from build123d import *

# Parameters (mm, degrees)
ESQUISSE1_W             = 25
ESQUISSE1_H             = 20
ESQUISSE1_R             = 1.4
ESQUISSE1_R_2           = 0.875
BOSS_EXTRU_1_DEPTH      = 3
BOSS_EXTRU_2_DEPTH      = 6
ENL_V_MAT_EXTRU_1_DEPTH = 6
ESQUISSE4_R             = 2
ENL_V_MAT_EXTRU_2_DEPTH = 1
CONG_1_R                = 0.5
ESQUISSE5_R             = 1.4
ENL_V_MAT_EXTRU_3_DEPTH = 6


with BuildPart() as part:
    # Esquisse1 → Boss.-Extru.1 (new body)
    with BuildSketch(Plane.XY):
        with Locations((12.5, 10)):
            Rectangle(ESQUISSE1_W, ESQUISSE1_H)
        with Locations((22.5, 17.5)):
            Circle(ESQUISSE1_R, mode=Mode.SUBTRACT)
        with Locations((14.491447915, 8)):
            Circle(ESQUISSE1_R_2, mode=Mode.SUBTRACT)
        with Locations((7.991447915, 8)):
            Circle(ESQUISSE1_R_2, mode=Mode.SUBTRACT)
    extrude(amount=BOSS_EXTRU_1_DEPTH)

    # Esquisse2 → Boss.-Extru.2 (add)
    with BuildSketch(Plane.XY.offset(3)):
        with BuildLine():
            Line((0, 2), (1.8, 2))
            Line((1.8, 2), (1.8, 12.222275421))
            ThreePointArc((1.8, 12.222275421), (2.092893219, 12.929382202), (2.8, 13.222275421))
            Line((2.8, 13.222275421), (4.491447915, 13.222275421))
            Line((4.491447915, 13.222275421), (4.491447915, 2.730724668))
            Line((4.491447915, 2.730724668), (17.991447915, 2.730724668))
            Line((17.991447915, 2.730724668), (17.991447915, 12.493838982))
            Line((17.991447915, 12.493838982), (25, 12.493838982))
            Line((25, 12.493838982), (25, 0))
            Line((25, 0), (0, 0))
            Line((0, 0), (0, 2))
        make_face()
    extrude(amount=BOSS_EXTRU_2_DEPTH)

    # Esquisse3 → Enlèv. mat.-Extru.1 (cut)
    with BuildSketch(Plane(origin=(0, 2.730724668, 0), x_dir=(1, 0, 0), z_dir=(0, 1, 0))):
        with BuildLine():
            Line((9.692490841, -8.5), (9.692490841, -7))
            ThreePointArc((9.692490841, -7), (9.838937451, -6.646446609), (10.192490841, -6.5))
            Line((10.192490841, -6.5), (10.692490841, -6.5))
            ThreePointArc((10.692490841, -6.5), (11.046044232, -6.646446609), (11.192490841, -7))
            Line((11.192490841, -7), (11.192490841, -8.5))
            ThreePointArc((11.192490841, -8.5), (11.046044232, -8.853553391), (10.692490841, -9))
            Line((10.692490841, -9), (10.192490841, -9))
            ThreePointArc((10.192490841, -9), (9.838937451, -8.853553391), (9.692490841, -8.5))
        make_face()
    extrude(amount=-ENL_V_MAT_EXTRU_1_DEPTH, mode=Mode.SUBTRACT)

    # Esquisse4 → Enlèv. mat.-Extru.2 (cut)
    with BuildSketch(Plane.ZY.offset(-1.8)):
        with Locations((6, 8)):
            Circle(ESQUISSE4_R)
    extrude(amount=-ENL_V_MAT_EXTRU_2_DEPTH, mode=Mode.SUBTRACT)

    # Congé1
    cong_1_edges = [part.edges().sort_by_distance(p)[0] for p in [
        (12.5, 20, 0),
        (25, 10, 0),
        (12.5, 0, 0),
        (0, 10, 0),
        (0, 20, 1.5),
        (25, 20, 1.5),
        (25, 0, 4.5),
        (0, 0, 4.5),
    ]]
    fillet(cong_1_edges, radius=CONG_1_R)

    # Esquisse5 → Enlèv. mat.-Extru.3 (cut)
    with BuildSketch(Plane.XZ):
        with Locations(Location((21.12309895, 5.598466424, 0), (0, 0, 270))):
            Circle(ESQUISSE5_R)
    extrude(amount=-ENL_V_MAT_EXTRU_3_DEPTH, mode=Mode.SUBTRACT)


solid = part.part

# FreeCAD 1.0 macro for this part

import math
import FreeCAD as App
import Part
import Sketcher
from FreeCAD import Vector
Q = App.Units.Quantity


def edges_at(feature, points):
    """Names of the edges that pass closest to the given points."""
    edges = feature.Shape.Edges
    near = lambda p: min(range(len(edges)), key=lambda i: edges[i].distToShape(Part.Vertex(*p))[0])
    return sorted({f"Edge{near(p) + 1}" for p in points})

doc = App.newDocument("Part")
body = doc.addObject("PartDesign::Body", "Body")

sketch1 = body.newObject("Sketcher::SketchObject", "Sketch")
sketch1.AttachmentSupport = (doc.getObject("XY_Plane"), [""])
sketch1.MapMode = "FlatFace"
sketch1.addGeometry([
    Part.LineSegment(Vector(0, 20, 0), Vector(0, 0, 0)),
    Part.LineSegment(Vector(0, 0, 0), Vector(25, 0, 0)),
    Part.LineSegment(Vector(25, 0, 0), Vector(25, 20, 0)),
    Part.LineSegment(Vector(25, 20, 0), Vector(0, 20, 0)),
    Part.Circle(Vector(8, 8, 0), Vector(0, 0, 1), 0.9),
    Part.Circle(Vector(14.5, 8, 0), Vector(0, 0, 1), 0.9),
    Part.Circle(Vector(22.5, 17.5, 0), Vector(0, 0, 1), 1.4),
], False)
sketch1.addConstraint([
    Sketcher.Constraint("Coincident", 0, 2, 1, 1),
    Sketcher.Constraint("Coincident", 1, 2, 2, 1),
    Sketcher.Constraint("Coincident", 2, 2, 3, 1),
    Sketcher.Constraint("Coincident", 3, 2, 0, 1),
    Sketcher.Constraint("Vertical", 0),
    Sketcher.Constraint("Horizontal", 1),
    Sketcher.Constraint("Vertical", 2),
    Sketcher.Constraint("Horizontal", 3),
    Sketcher.Constraint("Coincident", 0, 2, -1, 1),
    Sketcher.Constraint("Equal", 4, 5),
    Sketcher.Constraint("Horizontal", 4, 3, 5, 3),
    Sketcher.Constraint("Diameter", 6, Q("2.8 mm")),
    Sketcher.Constraint("Diameter", 4, Q("1.75 mm")),
    Sketcher.Constraint("DistanceX", 1, 1, 1, 2, Q("25 mm")),
    Sketcher.Constraint("DistanceY", 0, 2, 0, 1, Q("20 mm")),
    Sketcher.Constraint("DistanceY", -1, 1, 4, 3, Q("8 mm")),
    Sketcher.Constraint("DistanceX", -1, 1, 6, 3, Q("22.5 mm")),
    Sketcher.Constraint("DistanceY", -1, 1, 6, 3, Q("17.5 mm")),
    Sketcher.Constraint("DistanceX", 4, 3, 5, 3, Q("6.5 mm")),
    Sketcher.Constraint("DistanceX", -1, 1, 4, 3, Q("7.991448 mm")),
])
pad1 = body.newObject("PartDesign::Pad", "Pad")
pad1.Profile = sketch1
pad1.Length = 3

sketch2 = body.newObject("Sketcher::SketchObject", "Sketch001")
sketch2.AttachmentSupport = (doc.getObject("XY_Plane"), [""])
sketch2.MapMode = "FlatFace"
sketch2.AttachmentOffset = App.Placement(Vector(0, 0, 3), App.Rotation())
sketch2.addGeometry([
    Part.LineSegment(Vector(1.8, 2, 0), Vector(0, 2, 0)),
    Part.LineSegment(Vector(0, 2, 0), Vector(0, 0, 0)),
    Part.LineSegment(Vector(0, 0, 0), Vector(25, 0, 0)),
    Part.LineSegment(Vector(25, 0, 0), Vector(25, 12.5, 0)),
    Part.LineSegment(Vector(25, 12.5, 0), Vector(18, 12.5, 0)),
    Part.LineSegment(Vector(18, 12.5, 0), Vector(18, 2.7, 0)),
    Part.LineSegment(Vector(18, 2.7, 0), Vector(4.5, 2.7, 0)),
    Part.LineSegment(Vector(4.5, 2.7, 0), Vector(4.5, 13.2, 0)),
    Part.LineSegment(Vector(4.5, 13.2, 0), Vector(2.8, 13.2, 0)),
    Part.ArcOfCircle(Part.Circle(Vector(2.8, 12.2, 0), Vector(0, 0, 1), 1), math.radians(90), math.radians(180)),
    Part.LineSegment(Vector(1.8, 12.2, 0), Vector(1.8, 2, 0)),
], False)
sketch2.addConstraint([
    Sketcher.Constraint("Coincident", 0, 2, 1, 1),
    Sketcher.Constraint("Coincident", 1, 2, 2, 1),
    Sketcher.Constraint("Coincident", 2, 2, 3, 1),
    Sketcher.Constraint("Coincident", 3, 2, 4, 1),
    Sketcher.Constraint("Coincident", 4, 2, 5, 1),
    Sketcher.Constraint("Coincident", 5, 2, 6, 1),
    Sketcher.Constraint("Coincident", 6, 2, 7, 1),
    Sketcher.Constraint("Coincident", 7, 2, 8, 1),
    Sketcher.Constraint("Tangent", 8, 2, 9, 1),
    Sketcher.Constraint("Tangent", 9, 2, 10, 1),
    Sketcher.Constraint("Coincident", 10, 2, 0, 1),
    Sketcher.Constraint("Horizontal", 0),
    Sketcher.Constraint("Vertical", 1),
    Sketcher.Constraint("Horizontal", 2),
    Sketcher.Constraint("Vertical", 3),
    Sketcher.Constraint("Horizontal", 4),
    Sketcher.Constraint("Vertical", 5),
    Sketcher.Constraint("Horizontal", 6),
    Sketcher.Constraint("Vertical", 7),
    Sketcher.Constraint("Horizontal", 8),
    Sketcher.Constraint("Vertical", 10),
    Sketcher.Constraint("Coincident", 1, 2, -1, 1),
    Sketcher.Constraint("Radius", 9, Q("1 mm")),
    Sketcher.Constraint("DistanceX", 2, 1, 2, 2, Q("25 mm")),
    Sketcher.Constraint("DistanceY", 1, 2, 1, 1, Q("2 mm")),
    Sketcher.Constraint("DistanceX", 0, 2, 0, 1, Q("1.8 mm")),
    Sketcher.Constraint("DistanceX", 6, 2, 6, 1, Q("13.5 mm")),
    Sketcher.Constraint("DistanceY", 3, 1, 3, 2, Q("12.493839 mm")),
    Sketcher.Constraint("DistanceY", 7, 1, 7, 2, Q("10.491551 mm")),
    Sketcher.Constraint("DistanceX", 4, 2, 4, 1, Q("7.008552 mm")),
    Sketcher.Constraint("DistanceY", 5, 2, 5, 1, Q("9.763114 mm")),
])
pad2 = body.newObject("PartDesign::Pad", "Pad001")
pad2.Profile = sketch2
pad2.Length = 6

sketch3 = body.newObject("Sketcher::SketchObject", "Sketch002")
sketch3.AttachmentSupport = (doc.getObject("XZ_Plane"), [""])
sketch3.MapMode = "FlatFace"
sketch3.AttachmentOffset = App.Placement(Vector(0, 0, -2.730725), App.Rotation())
sketch3.addGeometry([
    Part.LineSegment(Vector(9.69, 7, 0), Vector(9.69, 8.5, 0)),
    Part.ArcOfCircle(Part.Circle(Vector(10.19, 8.5, 0), Vector(0, 0, 1), 0.5), math.radians(90), math.radians(180)),
    Part.LineSegment(Vector(10.19, 9, 0), Vector(10.69, 9, 0)),
    Part.ArcOfCircle(Part.Circle(Vector(10.69, 8.5, 0), Vector(0, 0, 1), 0.5), math.radians(0), math.radians(90)),
    Part.LineSegment(Vector(11.19, 8.5, 0), Vector(11.19, 7, 0)),
    Part.ArcOfCircle(Part.Circle(Vector(10.69, 7, 0), Vector(0, 0, 1), 0.5), math.radians(-90), math.radians(0)),
    Part.LineSegment(Vector(10.69, 6.5, 0), Vector(10.19, 6.5, 0)),
    Part.ArcOfCircle(Part.Circle(Vector(10.19, 7, 0), Vector(0, 0, 1), 0.5), math.radians(180), math.radians(270)),
], False)
sketch3.addConstraint([
    Sketcher.Constraint("Tangent", 0, 2, 1, 2),
    Sketcher.Constraint("Tangent", 1, 1, 2, 1),
    Sketcher.Constraint("Tangent", 2, 2, 3, 2),
    Sketcher.Constraint("Tangent", 3, 1, 4, 1),
    Sketcher.Constraint("Tangent", 4, 2, 5, 2),
    Sketcher.Constraint("Tangent", 5, 1, 6, 1),
    Sketcher.Constraint("Tangent", 6, 2, 7, 2),
    Sketcher.Constraint("Tangent", 7, 1, 0, 1),
    Sketcher.Constraint("Vertical", 0),
    Sketcher.Constraint("Horizontal", 2),
    Sketcher.Constraint("Vertical", 4),
    Sketcher.Constraint("Horizontal", 6),
    Sketcher.Constraint("Equal", 1, 3),
    Sketcher.Constraint("Equal", 3, 5),
    Sketcher.Constraint("Equal", 5, 7),
    Sketcher.Constraint("Radius", 1, Q("0.5 mm")),
    Sketcher.Constraint("DistanceX", 2, 1, 2, 2, Q("0.5 mm")),
    Sketcher.Constraint("DistanceY", 0, 1, 0, 2, Q("1.5 mm")),
    Sketcher.Constraint("DistanceY", -1, 1, 5, 3, Q("7 mm")),
    Sketcher.Constraint("DistanceX", -1, 1, 1, 3, Q("10.192491 mm")),
])
pocket1 = body.newObject("PartDesign::Pocket", "Pocket")
pocket1.Profile = sketch3
pocket1.Length = 6
pocket1.Reversed = True

sketch4 = body.newObject("Sketcher::SketchObject", "Sketch003")
sketch4.AttachmentSupport = (doc.getObject("YZ_Plane"), [""])
sketch4.MapMode = "FlatFace"
sketch4.AttachmentOffset = App.Placement(Vector(0, 0, 1.8), App.Rotation())
sketch4.addGeometry(Part.Circle(Vector(8, 6, 0), Vector(0, 0, 1), 2), False)
sketch4.addConstraint([
    Sketcher.Constraint("Diameter", 0, Q("4 mm")),
    Sketcher.Constraint("DistanceX", -1, 1, 0, 3, Q("8 mm")),
    Sketcher.Constraint("DistanceY", -1, 1, 0, 3, Q("6 mm")),
])
pocket2 = body.newObject("PartDesign::Pocket", "Pocket001")
pocket2.Profile = sketch4
pocket2.Length = 1
pocket2.Reversed = True
doc.recompute()

fillet = body.newObject("PartDesign::Fillet", "Fillet")
fillet.Base = (pocket2, edges_at(pocket2, [
    (12.5, 20, 0),
    (25, 10, 0),
    (12.5, 0, 0),
    (0, 10, 0),
    (0, 20, 1.5),
    (25, 20, 1.5),
    (25, 0, 4.5),
    (0, 0, 4.5),
]))
fillet.Radius = 0.5

sketch5 = body.newObject("Sketcher::SketchObject", "Sketch004")
sketch5.AttachmentSupport = (doc.getObject("XZ_Plane"), [""])
sketch5.MapMode = "FlatFace"
sketch5.addGeometry(Part.Circle(Vector(21.1, 5.6, 0), Vector(0, 0, 1), 1.4), False)
sketch5.addConstraint([
    Sketcher.Constraint("Diameter", 0, Q("2.8 mm")),
    Sketcher.Constraint("DistanceX", -1, 1, 0, 3, Q("21.123099 mm")),
    Sketcher.Constraint("DistanceY", -1, 1, 0, 3, Q("5.598466 mm")),
])
pocket3 = body.newObject("PartDesign::Pocket", "Pocket002")
pocket3.Profile = sketch5
pocket3.Length = 6

doc.recompute()
